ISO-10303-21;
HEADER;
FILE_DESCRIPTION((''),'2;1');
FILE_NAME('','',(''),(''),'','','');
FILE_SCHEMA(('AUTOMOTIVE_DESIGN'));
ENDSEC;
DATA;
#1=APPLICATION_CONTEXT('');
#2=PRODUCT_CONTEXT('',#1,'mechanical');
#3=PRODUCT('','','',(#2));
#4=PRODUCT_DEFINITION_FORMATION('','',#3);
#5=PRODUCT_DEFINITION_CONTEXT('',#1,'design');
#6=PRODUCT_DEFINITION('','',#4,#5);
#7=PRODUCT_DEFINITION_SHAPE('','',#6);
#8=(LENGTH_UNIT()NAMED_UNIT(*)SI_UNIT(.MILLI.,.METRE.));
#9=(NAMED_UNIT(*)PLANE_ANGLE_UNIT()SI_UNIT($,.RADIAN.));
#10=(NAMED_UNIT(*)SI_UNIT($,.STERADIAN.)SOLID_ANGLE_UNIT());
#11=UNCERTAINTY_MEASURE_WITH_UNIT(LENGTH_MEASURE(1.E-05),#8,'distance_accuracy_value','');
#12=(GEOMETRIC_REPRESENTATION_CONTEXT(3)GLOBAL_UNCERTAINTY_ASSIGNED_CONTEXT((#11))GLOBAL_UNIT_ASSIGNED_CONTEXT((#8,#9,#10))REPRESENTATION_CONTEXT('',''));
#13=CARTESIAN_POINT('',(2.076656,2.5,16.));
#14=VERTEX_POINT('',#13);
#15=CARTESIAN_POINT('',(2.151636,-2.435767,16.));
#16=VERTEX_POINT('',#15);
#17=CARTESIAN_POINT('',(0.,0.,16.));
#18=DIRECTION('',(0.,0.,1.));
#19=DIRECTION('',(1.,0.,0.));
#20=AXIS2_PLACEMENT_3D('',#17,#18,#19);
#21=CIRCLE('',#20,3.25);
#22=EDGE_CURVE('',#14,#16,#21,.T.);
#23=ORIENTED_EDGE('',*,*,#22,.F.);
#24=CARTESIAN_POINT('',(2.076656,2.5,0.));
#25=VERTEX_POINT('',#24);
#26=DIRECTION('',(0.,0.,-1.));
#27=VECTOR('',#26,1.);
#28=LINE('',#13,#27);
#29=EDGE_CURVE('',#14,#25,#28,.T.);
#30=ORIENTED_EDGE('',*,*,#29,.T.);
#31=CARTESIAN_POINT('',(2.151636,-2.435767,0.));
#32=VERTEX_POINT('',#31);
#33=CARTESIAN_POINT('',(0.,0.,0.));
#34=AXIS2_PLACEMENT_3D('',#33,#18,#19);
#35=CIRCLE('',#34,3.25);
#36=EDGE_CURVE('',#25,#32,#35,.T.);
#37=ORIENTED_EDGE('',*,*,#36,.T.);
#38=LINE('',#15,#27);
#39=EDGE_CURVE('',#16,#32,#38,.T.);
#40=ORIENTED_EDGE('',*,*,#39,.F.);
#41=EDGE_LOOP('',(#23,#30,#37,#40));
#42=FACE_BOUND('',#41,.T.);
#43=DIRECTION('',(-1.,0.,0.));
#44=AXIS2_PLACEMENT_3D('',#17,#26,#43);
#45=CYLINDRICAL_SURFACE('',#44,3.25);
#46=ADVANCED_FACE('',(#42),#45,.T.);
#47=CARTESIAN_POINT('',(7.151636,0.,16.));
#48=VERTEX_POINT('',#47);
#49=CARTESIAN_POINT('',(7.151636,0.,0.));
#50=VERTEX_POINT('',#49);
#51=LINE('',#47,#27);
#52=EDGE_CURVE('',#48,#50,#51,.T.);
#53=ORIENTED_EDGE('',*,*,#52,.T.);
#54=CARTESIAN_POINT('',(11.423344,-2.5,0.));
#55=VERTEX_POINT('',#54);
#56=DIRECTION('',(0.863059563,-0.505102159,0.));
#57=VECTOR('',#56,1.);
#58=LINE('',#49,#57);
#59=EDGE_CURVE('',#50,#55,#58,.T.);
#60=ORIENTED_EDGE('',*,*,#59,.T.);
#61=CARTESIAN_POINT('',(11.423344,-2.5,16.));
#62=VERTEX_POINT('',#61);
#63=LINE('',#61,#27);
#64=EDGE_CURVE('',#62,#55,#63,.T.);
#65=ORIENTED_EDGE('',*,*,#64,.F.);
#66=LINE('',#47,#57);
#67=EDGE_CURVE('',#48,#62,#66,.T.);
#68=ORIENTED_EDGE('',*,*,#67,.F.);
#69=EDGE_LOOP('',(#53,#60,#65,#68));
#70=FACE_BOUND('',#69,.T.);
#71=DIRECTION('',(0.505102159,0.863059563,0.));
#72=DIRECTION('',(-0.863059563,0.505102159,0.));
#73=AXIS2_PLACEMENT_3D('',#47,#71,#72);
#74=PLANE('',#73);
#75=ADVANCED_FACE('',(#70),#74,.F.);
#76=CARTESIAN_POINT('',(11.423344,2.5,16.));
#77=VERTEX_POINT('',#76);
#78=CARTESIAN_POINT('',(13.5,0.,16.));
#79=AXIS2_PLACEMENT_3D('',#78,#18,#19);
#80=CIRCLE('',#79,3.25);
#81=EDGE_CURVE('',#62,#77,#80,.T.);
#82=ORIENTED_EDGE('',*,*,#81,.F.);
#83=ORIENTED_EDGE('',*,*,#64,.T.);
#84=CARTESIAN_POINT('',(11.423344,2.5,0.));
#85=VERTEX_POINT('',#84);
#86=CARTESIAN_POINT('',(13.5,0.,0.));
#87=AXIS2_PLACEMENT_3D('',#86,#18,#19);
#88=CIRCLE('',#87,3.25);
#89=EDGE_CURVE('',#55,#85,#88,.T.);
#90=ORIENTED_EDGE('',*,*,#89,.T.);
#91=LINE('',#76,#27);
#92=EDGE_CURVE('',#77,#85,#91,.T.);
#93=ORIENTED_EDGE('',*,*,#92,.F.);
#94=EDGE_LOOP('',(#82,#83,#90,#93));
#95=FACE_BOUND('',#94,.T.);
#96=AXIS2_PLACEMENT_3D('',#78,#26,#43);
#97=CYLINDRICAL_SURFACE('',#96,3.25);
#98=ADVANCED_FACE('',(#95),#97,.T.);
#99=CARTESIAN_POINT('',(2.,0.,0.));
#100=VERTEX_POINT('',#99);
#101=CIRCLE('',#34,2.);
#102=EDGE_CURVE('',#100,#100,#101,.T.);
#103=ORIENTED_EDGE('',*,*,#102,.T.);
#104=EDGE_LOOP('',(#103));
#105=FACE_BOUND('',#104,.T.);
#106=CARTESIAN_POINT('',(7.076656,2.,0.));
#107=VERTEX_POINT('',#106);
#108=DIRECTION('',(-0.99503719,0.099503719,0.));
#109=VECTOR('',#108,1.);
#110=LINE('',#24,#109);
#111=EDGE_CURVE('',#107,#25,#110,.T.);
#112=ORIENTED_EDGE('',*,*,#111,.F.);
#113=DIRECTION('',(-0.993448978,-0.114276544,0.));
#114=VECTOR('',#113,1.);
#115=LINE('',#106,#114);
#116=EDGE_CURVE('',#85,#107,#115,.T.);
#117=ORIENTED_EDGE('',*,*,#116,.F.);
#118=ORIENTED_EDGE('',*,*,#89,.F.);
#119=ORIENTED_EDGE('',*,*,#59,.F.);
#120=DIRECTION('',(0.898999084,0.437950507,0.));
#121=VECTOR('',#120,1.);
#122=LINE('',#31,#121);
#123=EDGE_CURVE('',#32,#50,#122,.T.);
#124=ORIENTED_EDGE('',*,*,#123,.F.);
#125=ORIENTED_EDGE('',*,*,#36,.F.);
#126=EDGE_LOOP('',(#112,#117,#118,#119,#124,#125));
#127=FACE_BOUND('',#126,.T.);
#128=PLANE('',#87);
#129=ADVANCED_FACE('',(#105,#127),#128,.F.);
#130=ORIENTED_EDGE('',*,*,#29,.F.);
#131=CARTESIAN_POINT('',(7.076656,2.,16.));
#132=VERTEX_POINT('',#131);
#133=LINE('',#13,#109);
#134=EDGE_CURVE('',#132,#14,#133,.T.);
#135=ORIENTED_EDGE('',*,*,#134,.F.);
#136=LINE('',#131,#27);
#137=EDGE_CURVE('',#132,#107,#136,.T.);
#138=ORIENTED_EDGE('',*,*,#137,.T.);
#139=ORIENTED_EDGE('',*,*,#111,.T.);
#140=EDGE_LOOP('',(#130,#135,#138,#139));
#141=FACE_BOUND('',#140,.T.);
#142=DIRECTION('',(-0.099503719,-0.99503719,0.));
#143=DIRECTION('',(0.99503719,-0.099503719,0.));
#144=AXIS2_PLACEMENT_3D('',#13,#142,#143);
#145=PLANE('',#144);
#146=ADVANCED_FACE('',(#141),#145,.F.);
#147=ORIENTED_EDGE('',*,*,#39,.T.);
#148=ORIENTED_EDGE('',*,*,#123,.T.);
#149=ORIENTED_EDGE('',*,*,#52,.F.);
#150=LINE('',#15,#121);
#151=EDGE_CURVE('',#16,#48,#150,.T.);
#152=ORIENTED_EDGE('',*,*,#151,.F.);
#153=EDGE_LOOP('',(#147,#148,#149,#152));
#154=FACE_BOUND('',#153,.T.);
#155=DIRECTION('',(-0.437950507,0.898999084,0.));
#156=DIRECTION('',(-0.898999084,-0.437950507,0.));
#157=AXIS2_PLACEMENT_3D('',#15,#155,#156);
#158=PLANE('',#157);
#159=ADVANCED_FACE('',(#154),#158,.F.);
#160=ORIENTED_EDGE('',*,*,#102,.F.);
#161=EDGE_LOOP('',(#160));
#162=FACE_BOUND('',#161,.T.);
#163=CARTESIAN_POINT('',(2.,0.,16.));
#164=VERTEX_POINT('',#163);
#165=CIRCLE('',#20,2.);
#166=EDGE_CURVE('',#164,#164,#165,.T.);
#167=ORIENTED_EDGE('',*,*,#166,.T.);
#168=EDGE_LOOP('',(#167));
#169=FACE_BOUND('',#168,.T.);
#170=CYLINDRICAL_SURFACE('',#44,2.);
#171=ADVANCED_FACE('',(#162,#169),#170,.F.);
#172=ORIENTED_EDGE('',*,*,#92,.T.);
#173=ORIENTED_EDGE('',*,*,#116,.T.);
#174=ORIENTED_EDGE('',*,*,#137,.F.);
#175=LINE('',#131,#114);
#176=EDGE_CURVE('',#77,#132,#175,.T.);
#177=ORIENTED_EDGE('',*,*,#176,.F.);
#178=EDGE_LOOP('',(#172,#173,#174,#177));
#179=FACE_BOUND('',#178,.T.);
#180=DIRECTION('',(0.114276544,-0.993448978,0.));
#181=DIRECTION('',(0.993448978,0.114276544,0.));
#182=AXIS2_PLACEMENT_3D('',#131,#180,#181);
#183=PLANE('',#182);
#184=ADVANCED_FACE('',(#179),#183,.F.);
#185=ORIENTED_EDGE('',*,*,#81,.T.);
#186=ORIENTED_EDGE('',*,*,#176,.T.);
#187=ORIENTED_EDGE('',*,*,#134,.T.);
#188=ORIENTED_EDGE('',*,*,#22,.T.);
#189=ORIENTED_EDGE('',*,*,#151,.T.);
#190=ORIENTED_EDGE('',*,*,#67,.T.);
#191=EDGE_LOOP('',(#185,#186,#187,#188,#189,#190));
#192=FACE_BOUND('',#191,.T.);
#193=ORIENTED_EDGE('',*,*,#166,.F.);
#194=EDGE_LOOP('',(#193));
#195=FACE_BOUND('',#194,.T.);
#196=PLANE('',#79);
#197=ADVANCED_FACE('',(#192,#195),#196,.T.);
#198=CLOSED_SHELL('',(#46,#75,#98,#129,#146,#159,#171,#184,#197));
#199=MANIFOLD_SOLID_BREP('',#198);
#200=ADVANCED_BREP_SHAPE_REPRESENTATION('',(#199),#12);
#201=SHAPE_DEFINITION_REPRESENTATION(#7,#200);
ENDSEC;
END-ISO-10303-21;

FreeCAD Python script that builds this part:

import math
import FreeCAD as App
import Part
import Sketcher
from FreeCAD import Vector
Q = App.Units.Quantity

doc = App.newDocument("Part")
body = doc.addObject("PartDesign::Body", "Body")

# Sketch on XY plane
sketch1 = body.newObject("Sketcher::SketchObject", "Sketch")
sketch1.AttachmentSupport = (doc.getObject("XY_Plane"), [""])
sketch1.MapMode = "FlatFace"
sketch1.addGeometry(Part.LineSegment(Vector(7.1, 2, 0), Vector(2.1, 2.5, 0)), False)
sketch1.addGeometry(Part.ArcOfCircle(Part.Circle(Vector(0, 0, 0), Vector(0, 0, 1), 3.2), math.radians(50), math.radians(311)), False)
sketch1.addGeometry(Part.LineSegment(Vector(2.2, -2.4, 0), Vector(7.2, 0, 0)), False)
sketch1.addGeometry(Part.LineSegment(Vector(7.2, 0, 0), Vector(11.4, -2.5, 0)), False)
sketch1.addGeometry(Part.ArcOfCircle(Part.Circle(Vector(13.5, 0, 0), Vector(0, 0, 1), 3.2), math.radians(-130), math.radians(130)), False)
sketch1.addGeometry(Part.LineSegment(Vector(11.4, 2.5, 0), Vector(7.1, 2, 0)), False)
sketch1.addGeometry(Part.Circle(Vector(0, 0, 0), Vector(0, 0, 1), 2), False)
sketch1.addConstraint(Sketcher.Constraint("Coincident", 0, 2, 1, 1))
sketch1.addConstraint(Sketcher.Constraint("Coincident", 1, 2, 2, 1))
sketch1.addConstraint(Sketcher.Constraint("Coincident", 2, 2, 3, 1))
sketch1.addConstraint(Sketcher.Constraint("Coincident", 3, 2, 4, 1))
sketch1.addConstraint(Sketcher.Constraint("Coincident", 4, 2, 5, 1))
sketch1.addConstraint(Sketcher.Constraint("Coincident", 5, 2, 0, 1))
sketch1.addConstraint(Sketcher.Constraint("Coincident", 1, 3, -1, 1))
sketch1.addConstraint(Sketcher.Constraint("Coincident", 6, 3, -1, 1))
sketch1.addConstraint(Sketcher.Constraint("Equal", 1, 4))
sketch1.addConstraint(Sketcher.Constraint("Symmetric", 3, 2, 4, 2, -1))
sketch1.addConstraint(Sketcher.Constraint("PointOnObject", 2, 2, -1))
sketch1.addConstraint(Sketcher.Constraint("Horizontal", 0, 2, 4, 2))
sketch1.addConstraint(Sketcher.Constraint("Diameter", 6, Q("4 mm")))
sketch1.addConstraint(Sketcher.Constraint("Radius", 1, Q("3.25 mm")))
sketch1.addConstraint(Sketcher.Constraint("DistanceY", -1, 1, 5, 2, Q("2 mm")))
sketch1.addConstraint(Sketcher.Constraint("DistanceX", 1, 2, 2, 2, Q("5 mm")))
sketch1.addConstraint(Sketcher.Constraint("DistanceY", 3, 2, 0, 2, Q("5 mm")))
sketch1.addConstraint(Sketcher.Constraint("DistanceX", 0, 2, 5, 2, Q("5 mm")))
sketch1.addConstraint(Sketcher.Constraint("DistanceX", -1, 1, 4, 3, Q("13.5 mm")))
sketch1.addConstraint(Sketcher.Constraint("Distance", 2, Q("5.561741 mm")))
pad1 = body.newObject("PartDesign::Pad", "Pad")
pad1.Profile = sketch1
pad1.Length = 16

doc.recompute()
